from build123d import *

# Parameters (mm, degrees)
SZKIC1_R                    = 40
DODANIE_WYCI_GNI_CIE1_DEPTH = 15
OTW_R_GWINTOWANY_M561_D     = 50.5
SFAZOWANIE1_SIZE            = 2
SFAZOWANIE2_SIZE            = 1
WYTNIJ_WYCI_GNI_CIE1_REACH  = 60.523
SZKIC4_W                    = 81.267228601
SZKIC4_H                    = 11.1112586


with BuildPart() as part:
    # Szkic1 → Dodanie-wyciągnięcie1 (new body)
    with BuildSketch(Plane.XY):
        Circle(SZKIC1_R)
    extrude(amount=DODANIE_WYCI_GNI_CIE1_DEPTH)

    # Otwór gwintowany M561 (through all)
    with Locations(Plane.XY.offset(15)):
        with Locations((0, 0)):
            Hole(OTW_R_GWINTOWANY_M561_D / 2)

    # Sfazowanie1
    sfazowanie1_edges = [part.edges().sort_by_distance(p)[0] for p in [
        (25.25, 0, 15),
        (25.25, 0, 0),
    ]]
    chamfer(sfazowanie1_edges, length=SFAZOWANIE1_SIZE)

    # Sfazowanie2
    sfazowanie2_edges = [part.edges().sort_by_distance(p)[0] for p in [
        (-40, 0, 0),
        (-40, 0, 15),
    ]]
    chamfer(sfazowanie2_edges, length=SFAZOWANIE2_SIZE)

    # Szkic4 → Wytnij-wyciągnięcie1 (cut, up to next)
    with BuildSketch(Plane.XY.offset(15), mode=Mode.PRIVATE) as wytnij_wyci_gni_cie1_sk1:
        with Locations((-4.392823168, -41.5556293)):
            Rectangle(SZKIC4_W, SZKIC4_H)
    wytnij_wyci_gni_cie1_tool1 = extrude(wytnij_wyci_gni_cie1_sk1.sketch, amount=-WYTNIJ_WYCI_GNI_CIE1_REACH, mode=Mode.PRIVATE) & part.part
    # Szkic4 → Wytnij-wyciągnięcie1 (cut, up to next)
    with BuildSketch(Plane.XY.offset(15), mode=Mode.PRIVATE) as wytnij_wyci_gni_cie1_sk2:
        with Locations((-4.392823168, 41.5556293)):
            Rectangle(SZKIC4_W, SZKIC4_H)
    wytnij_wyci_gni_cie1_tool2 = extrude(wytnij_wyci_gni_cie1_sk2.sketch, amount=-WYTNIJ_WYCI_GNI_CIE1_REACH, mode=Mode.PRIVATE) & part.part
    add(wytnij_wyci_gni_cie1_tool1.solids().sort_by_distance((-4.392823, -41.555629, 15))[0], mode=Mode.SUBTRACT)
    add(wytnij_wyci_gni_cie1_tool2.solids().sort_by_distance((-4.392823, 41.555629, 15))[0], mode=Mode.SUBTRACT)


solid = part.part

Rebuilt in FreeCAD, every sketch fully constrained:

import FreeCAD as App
import Part
import Sketcher

V = App.Vector


def edges_at(feature, points):
    """Names of the edges that pass closest to the given points."""
    edges = feature.Shape.Edges
    near = lambda p: min(range(len(edges)), key=lambda i: edges[i].distToShape(Part.Vertex(*p))[0])
    return sorted({f"Edge{near(p) + 1}" for p in points})


def add_polygon(sketch, points):
    """Adds a closed chain of lines whose ends are joined by coincident constraints."""
    first, n = sketch.GeometryCount, len(points)
    for a, b in zip(points, points[1:] + points[:1]):
        sketch.addGeometry(Part.LineSegment(App.Vector(*a, 0), App.Vector(*b, 0)), False)
    for i in range(n):
        sketch.addConstraint(Sketcher.Constraint("Coincident", first + i, 2, first + (i + 1) % n, 1))

doc = App.newDocument("Part")
params = doc.addObject("Spreadsheet::Sheet", "Params")
for row, (alias, value) in enumerate([
    ("sketch1_diameter", "80 mm"),
    ("pad1_length", "15 mm"),
    ("sketch2_diameter", "50.5 mm"),
    ("hole_diameter", "50.5 mm"),
    ("chamfer_size", "2 mm"),
    ("chamfer2_size", "1 mm"),
    ("pocket1_length", "15 mm"),
    ("pocket2_length", "15 mm"),
], start=1):
    params.set(f"A{row}", alias)
    params.set(f"B{row}", "=" + value)
    params.setAlias(f"B{row}", alias)

body = doc.addObject("PartDesign::Body", "Body")

# Sketch on XY plane
sketch1 = body.newObject("Sketcher::SketchObject", "Sketch")
sketch1.AttachmentSupport = (doc.getObject("XY_Plane"), [""])
sketch1.MapMode = "FlatFace"
sketch1.addGeometry(Part.Circle(V(0, 0, 0), V(0, 0, 1), 40), False)
sketch1.addConstraint([
    Sketcher.Constraint("Coincident", 0, 3, -1, 1),
    Sketcher.Constraint("Diameter", 0, 80.0),
])
sketch1.setExpression("Constraints[1]", "Params.sketch1_diameter")
pad1 = body.newObject("PartDesign::Pad", "Pad")
pad1.Profile = sketch1
pad1.setExpression("Length", "Params.pad1_length")

# Sketch on XY plane
sketch2 = body.newObject("Sketcher::SketchObject", "Sketch001")
sketch2.AttachmentSupport = (doc.getObject("XY_Plane"), [""])
sketch2.MapMode = "FlatFace"
sketch2.AttachmentOffset = App.Placement(V(0, 0, 15), App.Rotation())
sketch2.addGeometry(Part.Circle(V(0, 0, 0), V(0, 0, 1), 25.25), False)
sketch2.addConstraint([
    Sketcher.Constraint("Coincident", 0, 3, -1, 1),
    Sketcher.Constraint("Diameter", 0, 50.5),
])
sketch2.setExpression("Constraints[1]", "Params.sketch2_diameter")
doc.recompute()
hole = body.newObject("PartDesign::Hole", "Hole")
hole.Profile = sketch2
hole.ThreadType = "None"
hole.setExpression("Diameter", "Params.hole_diameter")
hole.DepthType = "ThroughAll"
doc.recompute()

chamfer = body.newObject("PartDesign::Chamfer", "Chamfer")
chamfer.Base = (hole, edges_at(hole, [(25.25, 0, 15), (25.25, 0, 0)]))
chamfer.setExpression("Size", "Params.chamfer_size")
doc.recompute()

chamfer2 = body.newObject("PartDesign::Chamfer", "Chamfer001")
chamfer2.Base = (chamfer, edges_at(chamfer, [(-40, 0, 0), (-40, 0, 15)]))
chamfer2.setExpression("Size", "Params.chamfer2_size")

# Sketch on XY plane
sketch3 = body.newObject("Sketcher::SketchObject", "Sketch002")
sketch3.AttachmentSupport = (doc.getObject("XY_Plane"), [""])
sketch3.MapMode = "FlatFace"
sketch3.AttachmentOffset = App.Placement(V(0, 0, 15), App.Rotation())
add_polygon(sketch3, [(-45.026437, -36), (-45.026437, -47.111259), (36.240791, -47.111259), (36.240791, -36)])  # lines 0-3
sketch3.addConstraint([
    Sketcher.Constraint("Vertical", 0),
    Sketcher.Constraint("Horizontal", 1),
    Sketcher.Constraint("Vertical", 2),
    Sketcher.Constraint("Horizontal", 3),
    Sketcher.Constraint("DistanceY", 2, 2, -1, 1, 36.0),
    Sketcher.Constraint("DistanceX", 1, 1, 1, 2, 81.267229),
    Sketcher.Constraint("DistanceY", 0, 2, 0, 1, 11.111259),
    Sketcher.Constraint("DistanceX", -1, 1, 1, 2, 36.240791),
])
pocket1 = body.newObject("PartDesign::Pocket", "Pocket")
pocket1.Profile = sketch3
pocket1.setExpression("Length", "Params.pocket1_length")

# Sketch on XY plane
sketch4 = body.newObject("Sketcher::SketchObject", "Sketch003")
sketch4.AttachmentSupport = (doc.getObject("XY_Plane"), [""])
sketch4.MapMode = "FlatFace"
sketch4.AttachmentOffset = App.Placement(V(0, 0, 15), App.Rotation())
add_polygon(sketch4, [(-45.026437, 47.111259), (-45.026437, 36), (36.240791, 36), (36.240791, 47.111259)])  # lines 0-3
sketch4.addConstraint([
    Sketcher.Constraint("Vertical", 0),
    Sketcher.Constraint("Horizontal", 1),
    Sketcher.Constraint("Vertical", 2),
    Sketcher.Constraint("Horizontal", 3),
    Sketcher.Constraint("DistanceY", -1, 1, 0, 2, 36.0),
    Sketcher.Constraint("DistanceX", 1, 1, 1, 2, 81.267229),
    Sketcher.Constraint("DistanceY", 0, 2, 0, 1, 11.111259),
    Sketcher.Constraint("DistanceX", -1, 1, 1, 2, 36.240791),
])
pocket2 = body.newObject("PartDesign::Pocket", "Pocket001")
pocket2.Profile = sketch4
pocket2.setExpression("Length", "Params.pocket2_length")

doc.recompute()
